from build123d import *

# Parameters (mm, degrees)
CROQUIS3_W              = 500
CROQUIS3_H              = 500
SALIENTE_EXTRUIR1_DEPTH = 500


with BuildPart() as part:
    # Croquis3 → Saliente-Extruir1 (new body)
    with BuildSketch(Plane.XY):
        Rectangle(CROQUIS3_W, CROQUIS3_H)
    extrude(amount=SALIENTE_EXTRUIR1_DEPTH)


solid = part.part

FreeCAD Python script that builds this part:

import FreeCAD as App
import Part
import Sketcher
from FreeCAD import Vector

doc = App.newDocument("Part")
params = doc.addObject("Spreadsheet::Sheet", "Params")
for row, (alias, value) in enumerate([
    ("sketch1_width", "500 mm"),
    ("pad1_length", "500 mm"),
], start=1):
    params.set(f"A{row}", alias)
    params.set(f"B{row}", "=" + value)
    params.setAlias(f"B{row}", alias)

body = doc.addObject("PartDesign::Body", "Body")

# Sketch on XY plane
sketch1 = body.newObject("Sketcher::SketchObject", "Sketch")
sketch1.AttachmentSupport = (doc.getObject("XY_Plane"), [""])
sketch1.MapMode = "FlatFace"
sketch1.addGeometry([
    Part.LineSegment(Vector(-250, 250, 0), Vector(-250, -250, 0)),
    Part.LineSegment(Vector(-250, -250, 0), Vector(250, -250, 0)),
    Part.LineSegment(Vector(250, -250, 0), Vector(250, 250, 0)),
    Part.LineSegment(Vector(250, 250, 0), Vector(-250, 250, 0)),
], False)
sketch1.addConstraint([
    Sketcher.Constraint("Coincident", 0, 2, 1, 1),
    Sketcher.Constraint("Coincident", 1, 2, 2, 1),
    Sketcher.Constraint("Coincident", 2, 2, 3, 1),
    Sketcher.Constraint("Coincident", 3, 2, 0, 1),
    Sketcher.Constraint("Vertical", 0),
    Sketcher.Constraint("Horizontal", 1),
    Sketcher.Constraint("Vertical", 2),
    Sketcher.Constraint("Horizontal", 3),
    Sketcher.Constraint("Symmetric", 0, 2, 2, 2, -1, 1),
    Sketcher.Constraint("Equal", 3, 0),
    Sketcher.Constraint("DistanceX", 1, 1, 1, 2, 500.0),
])
sketch1.setExpression("Constraints[10]", "Params.sketch1_width")
pad1 = body.newObject("PartDesign::Pad", "Pad")
pad1.Profile = sketch1
pad1.setExpression("Length", "Params.pad1_length")

doc.recompute()
